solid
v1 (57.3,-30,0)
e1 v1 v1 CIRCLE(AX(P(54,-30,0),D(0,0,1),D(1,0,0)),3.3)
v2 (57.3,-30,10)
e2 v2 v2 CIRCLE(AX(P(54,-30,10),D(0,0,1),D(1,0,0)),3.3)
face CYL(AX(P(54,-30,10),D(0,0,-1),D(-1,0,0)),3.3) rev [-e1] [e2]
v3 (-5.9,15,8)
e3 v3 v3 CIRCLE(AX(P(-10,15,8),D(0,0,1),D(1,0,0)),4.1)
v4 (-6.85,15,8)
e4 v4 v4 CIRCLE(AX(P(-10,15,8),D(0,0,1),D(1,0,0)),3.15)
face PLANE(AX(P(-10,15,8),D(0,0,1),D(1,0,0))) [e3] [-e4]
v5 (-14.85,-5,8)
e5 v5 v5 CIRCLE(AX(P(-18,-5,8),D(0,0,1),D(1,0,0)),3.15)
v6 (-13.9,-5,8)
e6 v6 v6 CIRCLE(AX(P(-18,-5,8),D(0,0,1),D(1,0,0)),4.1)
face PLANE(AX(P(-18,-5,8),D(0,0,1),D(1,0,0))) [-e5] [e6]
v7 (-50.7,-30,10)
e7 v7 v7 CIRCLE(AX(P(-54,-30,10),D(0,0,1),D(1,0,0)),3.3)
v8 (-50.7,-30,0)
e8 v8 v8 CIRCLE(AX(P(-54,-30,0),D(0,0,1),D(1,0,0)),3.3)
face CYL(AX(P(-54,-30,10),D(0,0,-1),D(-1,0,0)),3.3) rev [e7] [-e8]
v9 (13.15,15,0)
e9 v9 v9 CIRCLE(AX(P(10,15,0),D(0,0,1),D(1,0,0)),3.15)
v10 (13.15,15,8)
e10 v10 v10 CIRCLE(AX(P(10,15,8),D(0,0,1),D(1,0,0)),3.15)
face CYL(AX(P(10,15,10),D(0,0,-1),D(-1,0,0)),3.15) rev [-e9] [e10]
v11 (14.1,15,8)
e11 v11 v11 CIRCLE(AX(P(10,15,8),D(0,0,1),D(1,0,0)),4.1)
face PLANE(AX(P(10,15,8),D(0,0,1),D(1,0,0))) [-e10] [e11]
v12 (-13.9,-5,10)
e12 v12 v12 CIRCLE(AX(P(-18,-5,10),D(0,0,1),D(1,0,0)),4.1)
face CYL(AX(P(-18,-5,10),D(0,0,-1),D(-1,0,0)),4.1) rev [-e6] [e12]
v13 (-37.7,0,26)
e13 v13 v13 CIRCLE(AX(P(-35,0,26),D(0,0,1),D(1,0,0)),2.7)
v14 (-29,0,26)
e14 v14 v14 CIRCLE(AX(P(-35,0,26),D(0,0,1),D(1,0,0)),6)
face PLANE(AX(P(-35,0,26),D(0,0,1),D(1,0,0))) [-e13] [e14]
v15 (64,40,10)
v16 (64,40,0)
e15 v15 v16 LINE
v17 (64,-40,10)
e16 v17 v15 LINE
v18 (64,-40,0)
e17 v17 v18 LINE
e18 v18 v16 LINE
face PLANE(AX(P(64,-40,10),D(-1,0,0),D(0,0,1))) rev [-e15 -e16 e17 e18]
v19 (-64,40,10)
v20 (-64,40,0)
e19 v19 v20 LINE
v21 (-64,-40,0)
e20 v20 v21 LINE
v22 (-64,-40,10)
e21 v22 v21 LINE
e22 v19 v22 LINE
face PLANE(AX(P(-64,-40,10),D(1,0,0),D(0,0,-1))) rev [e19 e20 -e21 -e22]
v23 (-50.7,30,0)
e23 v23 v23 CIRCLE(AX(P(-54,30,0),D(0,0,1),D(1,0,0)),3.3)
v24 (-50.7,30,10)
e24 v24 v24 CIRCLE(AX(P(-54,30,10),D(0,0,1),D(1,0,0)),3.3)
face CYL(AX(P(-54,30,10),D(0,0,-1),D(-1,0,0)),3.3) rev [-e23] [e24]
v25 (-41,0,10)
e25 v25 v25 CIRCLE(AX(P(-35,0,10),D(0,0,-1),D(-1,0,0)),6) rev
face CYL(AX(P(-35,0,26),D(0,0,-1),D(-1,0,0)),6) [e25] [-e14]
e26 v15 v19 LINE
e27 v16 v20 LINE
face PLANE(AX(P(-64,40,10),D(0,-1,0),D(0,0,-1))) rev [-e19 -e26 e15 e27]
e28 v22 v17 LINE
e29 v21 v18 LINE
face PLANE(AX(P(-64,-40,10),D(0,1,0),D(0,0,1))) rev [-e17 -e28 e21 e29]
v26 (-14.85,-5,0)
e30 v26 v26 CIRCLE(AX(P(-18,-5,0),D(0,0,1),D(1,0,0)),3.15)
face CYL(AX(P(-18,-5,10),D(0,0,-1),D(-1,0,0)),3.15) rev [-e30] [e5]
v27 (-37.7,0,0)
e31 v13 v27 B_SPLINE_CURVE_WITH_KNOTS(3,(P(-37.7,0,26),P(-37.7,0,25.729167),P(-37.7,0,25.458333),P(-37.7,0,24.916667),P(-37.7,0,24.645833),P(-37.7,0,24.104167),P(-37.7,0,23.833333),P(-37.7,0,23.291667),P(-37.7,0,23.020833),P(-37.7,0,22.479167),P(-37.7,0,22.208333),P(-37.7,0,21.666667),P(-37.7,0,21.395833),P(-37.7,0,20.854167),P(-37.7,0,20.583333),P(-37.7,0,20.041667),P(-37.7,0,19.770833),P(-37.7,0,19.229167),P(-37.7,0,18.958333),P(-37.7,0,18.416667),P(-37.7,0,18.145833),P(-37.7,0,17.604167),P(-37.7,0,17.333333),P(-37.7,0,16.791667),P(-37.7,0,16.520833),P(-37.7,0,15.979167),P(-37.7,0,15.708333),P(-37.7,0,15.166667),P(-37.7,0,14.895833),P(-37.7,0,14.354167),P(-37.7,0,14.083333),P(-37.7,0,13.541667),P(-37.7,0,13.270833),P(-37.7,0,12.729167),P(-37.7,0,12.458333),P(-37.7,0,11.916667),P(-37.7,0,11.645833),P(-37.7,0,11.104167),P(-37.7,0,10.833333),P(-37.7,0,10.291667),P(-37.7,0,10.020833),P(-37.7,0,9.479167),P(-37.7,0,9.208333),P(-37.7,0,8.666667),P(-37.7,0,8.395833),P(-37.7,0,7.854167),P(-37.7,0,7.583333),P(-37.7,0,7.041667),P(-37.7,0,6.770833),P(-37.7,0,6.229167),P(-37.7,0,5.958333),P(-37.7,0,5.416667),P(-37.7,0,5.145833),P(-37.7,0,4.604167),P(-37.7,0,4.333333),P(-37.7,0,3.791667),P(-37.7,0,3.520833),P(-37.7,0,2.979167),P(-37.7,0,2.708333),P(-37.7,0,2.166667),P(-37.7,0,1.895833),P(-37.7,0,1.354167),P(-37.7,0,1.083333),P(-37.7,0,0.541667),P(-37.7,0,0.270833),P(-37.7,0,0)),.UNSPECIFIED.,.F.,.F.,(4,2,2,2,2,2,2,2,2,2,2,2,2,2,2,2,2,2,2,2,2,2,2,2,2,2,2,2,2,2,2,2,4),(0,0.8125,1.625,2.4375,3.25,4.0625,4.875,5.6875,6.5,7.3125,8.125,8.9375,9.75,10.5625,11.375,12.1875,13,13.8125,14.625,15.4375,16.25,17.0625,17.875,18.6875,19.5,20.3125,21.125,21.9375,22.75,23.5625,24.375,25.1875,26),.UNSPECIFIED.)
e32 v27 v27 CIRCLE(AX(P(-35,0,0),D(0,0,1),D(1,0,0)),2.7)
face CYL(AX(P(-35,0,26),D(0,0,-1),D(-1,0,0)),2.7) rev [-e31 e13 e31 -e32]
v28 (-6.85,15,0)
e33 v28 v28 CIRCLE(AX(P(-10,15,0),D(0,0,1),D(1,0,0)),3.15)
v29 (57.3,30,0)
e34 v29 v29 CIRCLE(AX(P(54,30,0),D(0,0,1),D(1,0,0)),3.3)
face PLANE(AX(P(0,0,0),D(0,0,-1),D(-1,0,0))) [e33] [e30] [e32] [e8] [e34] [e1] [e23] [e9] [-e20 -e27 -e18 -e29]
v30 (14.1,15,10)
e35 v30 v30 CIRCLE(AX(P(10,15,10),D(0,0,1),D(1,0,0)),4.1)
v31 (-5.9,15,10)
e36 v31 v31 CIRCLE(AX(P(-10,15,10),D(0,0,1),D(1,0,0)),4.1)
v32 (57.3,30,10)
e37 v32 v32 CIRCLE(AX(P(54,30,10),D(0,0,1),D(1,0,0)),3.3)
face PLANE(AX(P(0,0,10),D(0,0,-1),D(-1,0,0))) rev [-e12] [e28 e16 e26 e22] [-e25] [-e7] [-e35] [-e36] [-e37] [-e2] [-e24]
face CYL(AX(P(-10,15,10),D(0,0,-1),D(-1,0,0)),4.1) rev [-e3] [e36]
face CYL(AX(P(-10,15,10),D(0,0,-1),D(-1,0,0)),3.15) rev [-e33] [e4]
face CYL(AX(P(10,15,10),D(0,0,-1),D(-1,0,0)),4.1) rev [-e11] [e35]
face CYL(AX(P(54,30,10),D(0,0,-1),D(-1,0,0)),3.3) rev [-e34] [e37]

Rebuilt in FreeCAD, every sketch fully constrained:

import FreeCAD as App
import Part
import Sketcher

V = App.Vector

doc = App.newDocument("Part")
body = doc.addObject("PartDesign::Body", "Body")

sketch1 = body.newObject("Sketcher::SketchObject", "Sketch")
sketch1.AttachmentSupport = (doc.getObject("XY_Plane"), [""])
sketch1.MapMode = "FlatFace"
sketch1.addGeometry([
    Part.LineSegment(V(-64, 40, 0), V(-64, -40, 0)),
    Part.LineSegment(V(-64, -40, 0), V(64, -40, 0)),
    Part.LineSegment(V(64, -40, 0), V(64, 40, 0)),
    Part.LineSegment(V(64, 40, 0), V(-64, 40, 0)),
], False)
sketch1.addConstraint([
    Sketcher.Constraint("Coincident", 0, 2, 1, 1),
    Sketcher.Constraint("Coincident", 1, 2, 2, 1),
    Sketcher.Constraint("Coincident", 2, 2, 3, 1),
    Sketcher.Constraint("Coincident", 3, 2, 0, 1),
    Sketcher.Constraint("Vertical", 0),
    Sketcher.Constraint("Horizontal", 1),
    Sketcher.Constraint("Vertical", 2),
    Sketcher.Constraint("Horizontal", 3),
    Sketcher.Constraint("Symmetric", 0, 2, 2, 2, -1, 1),
    Sketcher.Constraint("DistanceX", 1, 1, 1, 2, 128.0),
    Sketcher.Constraint("DistanceY", 0, 2, 0, 1, 80.0),
])
pad1 = body.newObject("PartDesign::Pad", "Pad")
pad1.Profile = sketch1
pad1.Length = 10

sketch2 = body.newObject("Sketcher::SketchObject", "Sketch001")
sketch2.AttachmentSupport = (doc.getObject("XY_Plane"), [""])
sketch2.MapMode = "FlatFace"
sketch2.AttachmentOffset = App.Placement(V(0, 0, 10), App.Rotation())
sketch2.addGeometry(Part.Circle(V(-35, 0, 0), V(0, 0, 1), 6), False)
sketch2.addConstraint([
    Sketcher.Constraint("PointOnObject", 0, 3, -1),
    Sketcher.Constraint("Diameter", 0, 12.0),
    Sketcher.Constraint("DistanceX", 0, 3, -1, 1, 35.0),
])
pad2 = body.newObject("PartDesign::Pad", "Pad001")
pad2.Profile = sketch2
pad2.Length = 16

sketch3 = body.newObject("Sketcher::SketchObject", "Sketch002")
sketch3.AttachmentSupport = (doc.getObject("XY_Plane"), [""])
sketch3.MapMode = "FlatFace"
sketch3.addGeometry(Part.Circle(V(-35, 0, 0), V(0, 0, 1), 2.7), False)
sketch3.addConstraint([
    Sketcher.Constraint("PointOnObject", 0, 3, -1),
    Sketcher.Constraint("Diameter", 0, 5.4),
    Sketcher.Constraint("DistanceX", 0, 3, -1, 1, 35.0),
])
pocket1 = body.newObject("PartDesign::Pocket", "Pocket")
pocket1.Profile = sketch3
pocket1.Length = 26
pocket1.Reversed = True

sketch4 = body.newObject("Sketcher::SketchObject", "Sketch003")
sketch4.AttachmentSupport = (doc.getObject("XY_Plane"), [""])
sketch4.MapMode = "FlatFace"
sketch4.addGeometry(Part.Circle(V(-10, 15, 0), V(0, 0, 1), 3.15), False)
sketch4.addConstraint([
    Sketcher.Constraint("Diameter", 0, 6.3),
    Sketcher.Constraint("DistanceX", 0, 3, -1, 1, 10.0),
    Sketcher.Constraint("DistanceY", -1, 1, 0, 3, 15.0),
])
pocket2 = body.newObject("PartDesign::Pocket", "Pocket001")
pocket2.Profile = sketch4
pocket2.Length = 10
pocket2.Reversed = True

sketch5 = body.newObject("Sketcher::SketchObject", "Sketch004")
sketch5.AttachmentSupport = (doc.getObject("XY_Plane"), [""])
sketch5.MapMode = "FlatFace"
sketch5.addGeometry(Part.Circle(V(10, 15, 0), V(0, 0, 1), 3.15), False)
sketch5.addConstraint([
    Sketcher.Constraint("Diameter", 0, 6.3),
    Sketcher.Constraint("DistanceX", -1, 1, 0, 3, 10.0),
    Sketcher.Constraint("DistanceY", -1, 1, 0, 3, 15.0),
])
pocket3 = body.newObject("PartDesign::Pocket", "Pocket002")
pocket3.Profile = sketch5
pocket3.Length = 10
pocket3.Reversed = True

sketch6 = body.newObject("Sketcher::SketchObject", "Sketch005")
sketch6.AttachmentSupport = (doc.getObject("XY_Plane"), [""])
sketch6.MapMode = "FlatFace"
sketch6.addGeometry(Part.Circle(V(-18, -5, 0), V(0, 0, 1), 3.15), False)
sketch6.addConstraint([
    Sketcher.Constraint("Diameter", 0, 6.3),
    Sketcher.Constraint("DistanceX", 0, 3, -1, 1, 18.0),
    Sketcher.Constraint("DistanceY", 0, 3, -1, 1, 5.0),
])
pocket4 = body.newObject("PartDesign::Pocket", "Pocket003")
pocket4.Profile = sketch6
pocket4.Length = 10
pocket4.Reversed = True

sketch7 = body.newObject("Sketcher::SketchObject", "Sketch006")
sketch7.AttachmentSupport = (doc.getObject("XY_Plane"), [""])
sketch7.MapMode = "FlatFace"
sketch7.AttachmentOffset = App.Placement(V(0, 0, 8), App.Rotation())
sketch7.addGeometry(Part.Circle(V(-10, 15, 0), V(0, 0, 1), 4.1), False)
sketch7.addConstraint([
    Sketcher.Constraint("Diameter", 0, 8.2),
    Sketcher.Constraint("DistanceX", 0, 3, -1, 1, 10.0),
    Sketcher.Constraint("DistanceY", -1, 1, 0, 3, 15.0),
])
pocket5 = body.newObject("PartDesign::Pocket", "Pocket004")
pocket5.Profile = sketch7
pocket5.Length = 2
pocket5.Reversed = True

sketch8 = body.newObject("Sketcher::SketchObject", "Sketch007")
sketch8.AttachmentSupport = (doc.getObject("XY_Plane"), [""])
sketch8.MapMode = "FlatFace"
sketch8.AttachmentOffset = App.Placement(V(0, 0, 8), App.Rotation())
sketch8.addGeometry(Part.Circle(V(10, 15, 0), V(0, 0, 1), 4.1), False)
sketch8.addConstraint([
    Sketcher.Constraint("Diameter", 0, 8.2),
    Sketcher.Constraint("DistanceX", -1, 1, 0, 3, 10.0),
    Sketcher.Constraint("DistanceY", -1, 1, 0, 3, 15.0),
])
pocket6 = body.newObject("PartDesign::Pocket", "Pocket005")
pocket6.Profile = sketch8
pocket6.Length = 2
pocket6.Reversed = True

sketch9 = body.newObject("Sketcher::SketchObject", "Sketch008")
sketch9.AttachmentSupport = (doc.getObject("XY_Plane"), [""])
sketch9.MapMode = "FlatFace"
sketch9.AttachmentOffset = App.Placement(V(0, 0, 8), App.Rotation())
sketch9.addGeometry(Part.Circle(V(-18, -5, 0), V(0, 0, 1), 4.1), False)
sketch9.addConstraint([
    Sketcher.Constraint("Diameter", 0, 8.2),
    Sketcher.Constraint("DistanceX", 0, 3, -1, 1, 18.0),
    Sketcher.Constraint("DistanceY", 0, 3, -1, 1, 5.0),
])
pocket7 = body.newObject("PartDesign::Pocket", "Pocket006")
pocket7.Profile = sketch9
pocket7.Length = 2
pocket7.Reversed = True

sketch10 = body.newObject("Sketcher::SketchObject", "Sketch009")
sketch10.AttachmentSupport = (doc.getObject("XY_Plane"), [""])
sketch10.MapMode = "FlatFace"
sketch10.addGeometry(Part.Circle(V(-54, -30, 0), V(0, 0, 1), 3.3), False)
sketch10.addConstraint([
    Sketcher.Constraint("Diameter", 0, 6.6),
    Sketcher.Constraint("DistanceX", 0, 3, -1, 1, 54.0),
    Sketcher.Constraint("DistanceY", 0, 3, -1, 1, 30.0),
])
pocket8 = body.newObject("PartDesign::Pocket", "Pocket007")
pocket8.Profile = sketch10
pocket8.Length = 10
pocket8.Reversed = True

sketch11 = body.newObject("Sketcher::SketchObject", "Sketch010")
sketch11.AttachmentSupport = (doc.getObject("XY_Plane"), [""])
sketch11.MapMode = "FlatFace"
sketch11.addGeometry(Part.Circle(V(-54, 30, 0), V(0, 0, 1), 3.3), False)
sketch11.addConstraint([
    Sketcher.Constraint("Diameter", 0, 6.6),
    Sketcher.Constraint("DistanceX", 0, 3, -1, 1, 54.0),
    Sketcher.Constraint("DistanceY", -1, 1, 0, 3, 30.0),
])
pocket9 = body.newObject("PartDesign::Pocket", "Pocket008")
pocket9.Profile = sketch11
pocket9.Length = 10
pocket9.Reversed = True

sketch12 = body.newObject("Sketcher::SketchObject", "Sketch011")
sketch12.AttachmentSupport = (doc.getObject("XY_Plane"), [""])
sketch12.MapMode = "FlatFace"
sketch12.addGeometry(Part.Circle(V(54, -30, 0), V(0, 0, 1), 3.3), False)
sketch12.addConstraint([
    Sketcher.Constraint("Diameter", 0, 6.6),
    Sketcher.Constraint("DistanceX", -1, 1, 0, 3, 54.0),
    Sketcher.Constraint("DistanceY", 0, 3, -1, 1, 30.0),
])
pocket10 = body.newObject("PartDesign::Pocket", "Pocket009")
pocket10.Profile = sketch12
pocket10.Length = 10
pocket10.Reversed = True

sketch13 = body.newObject("Sketcher::SketchObject", "Sketch012")
sketch13.AttachmentSupport = (doc.getObject("XY_Plane"), [""])
sketch13.MapMode = "FlatFace"
sketch13.addGeometry(Part.Circle(V(54, 30, 0), V(0, 0, 1), 3.3), False)
sketch13.addConstraint([
    Sketcher.Constraint("Diameter", 0, 6.6),
    Sketcher.Constraint("DistanceX", -1, 1, 0, 3, 54.0),
    Sketcher.Constraint("DistanceY", -1, 1, 0, 3, 30.0),
])
pocket11 = body.newObject("PartDesign::Pocket", "Pocket010")
pocket11.Profile = sketch13
pocket11.Length = 10
pocket11.Reversed = True

doc.recompute()
